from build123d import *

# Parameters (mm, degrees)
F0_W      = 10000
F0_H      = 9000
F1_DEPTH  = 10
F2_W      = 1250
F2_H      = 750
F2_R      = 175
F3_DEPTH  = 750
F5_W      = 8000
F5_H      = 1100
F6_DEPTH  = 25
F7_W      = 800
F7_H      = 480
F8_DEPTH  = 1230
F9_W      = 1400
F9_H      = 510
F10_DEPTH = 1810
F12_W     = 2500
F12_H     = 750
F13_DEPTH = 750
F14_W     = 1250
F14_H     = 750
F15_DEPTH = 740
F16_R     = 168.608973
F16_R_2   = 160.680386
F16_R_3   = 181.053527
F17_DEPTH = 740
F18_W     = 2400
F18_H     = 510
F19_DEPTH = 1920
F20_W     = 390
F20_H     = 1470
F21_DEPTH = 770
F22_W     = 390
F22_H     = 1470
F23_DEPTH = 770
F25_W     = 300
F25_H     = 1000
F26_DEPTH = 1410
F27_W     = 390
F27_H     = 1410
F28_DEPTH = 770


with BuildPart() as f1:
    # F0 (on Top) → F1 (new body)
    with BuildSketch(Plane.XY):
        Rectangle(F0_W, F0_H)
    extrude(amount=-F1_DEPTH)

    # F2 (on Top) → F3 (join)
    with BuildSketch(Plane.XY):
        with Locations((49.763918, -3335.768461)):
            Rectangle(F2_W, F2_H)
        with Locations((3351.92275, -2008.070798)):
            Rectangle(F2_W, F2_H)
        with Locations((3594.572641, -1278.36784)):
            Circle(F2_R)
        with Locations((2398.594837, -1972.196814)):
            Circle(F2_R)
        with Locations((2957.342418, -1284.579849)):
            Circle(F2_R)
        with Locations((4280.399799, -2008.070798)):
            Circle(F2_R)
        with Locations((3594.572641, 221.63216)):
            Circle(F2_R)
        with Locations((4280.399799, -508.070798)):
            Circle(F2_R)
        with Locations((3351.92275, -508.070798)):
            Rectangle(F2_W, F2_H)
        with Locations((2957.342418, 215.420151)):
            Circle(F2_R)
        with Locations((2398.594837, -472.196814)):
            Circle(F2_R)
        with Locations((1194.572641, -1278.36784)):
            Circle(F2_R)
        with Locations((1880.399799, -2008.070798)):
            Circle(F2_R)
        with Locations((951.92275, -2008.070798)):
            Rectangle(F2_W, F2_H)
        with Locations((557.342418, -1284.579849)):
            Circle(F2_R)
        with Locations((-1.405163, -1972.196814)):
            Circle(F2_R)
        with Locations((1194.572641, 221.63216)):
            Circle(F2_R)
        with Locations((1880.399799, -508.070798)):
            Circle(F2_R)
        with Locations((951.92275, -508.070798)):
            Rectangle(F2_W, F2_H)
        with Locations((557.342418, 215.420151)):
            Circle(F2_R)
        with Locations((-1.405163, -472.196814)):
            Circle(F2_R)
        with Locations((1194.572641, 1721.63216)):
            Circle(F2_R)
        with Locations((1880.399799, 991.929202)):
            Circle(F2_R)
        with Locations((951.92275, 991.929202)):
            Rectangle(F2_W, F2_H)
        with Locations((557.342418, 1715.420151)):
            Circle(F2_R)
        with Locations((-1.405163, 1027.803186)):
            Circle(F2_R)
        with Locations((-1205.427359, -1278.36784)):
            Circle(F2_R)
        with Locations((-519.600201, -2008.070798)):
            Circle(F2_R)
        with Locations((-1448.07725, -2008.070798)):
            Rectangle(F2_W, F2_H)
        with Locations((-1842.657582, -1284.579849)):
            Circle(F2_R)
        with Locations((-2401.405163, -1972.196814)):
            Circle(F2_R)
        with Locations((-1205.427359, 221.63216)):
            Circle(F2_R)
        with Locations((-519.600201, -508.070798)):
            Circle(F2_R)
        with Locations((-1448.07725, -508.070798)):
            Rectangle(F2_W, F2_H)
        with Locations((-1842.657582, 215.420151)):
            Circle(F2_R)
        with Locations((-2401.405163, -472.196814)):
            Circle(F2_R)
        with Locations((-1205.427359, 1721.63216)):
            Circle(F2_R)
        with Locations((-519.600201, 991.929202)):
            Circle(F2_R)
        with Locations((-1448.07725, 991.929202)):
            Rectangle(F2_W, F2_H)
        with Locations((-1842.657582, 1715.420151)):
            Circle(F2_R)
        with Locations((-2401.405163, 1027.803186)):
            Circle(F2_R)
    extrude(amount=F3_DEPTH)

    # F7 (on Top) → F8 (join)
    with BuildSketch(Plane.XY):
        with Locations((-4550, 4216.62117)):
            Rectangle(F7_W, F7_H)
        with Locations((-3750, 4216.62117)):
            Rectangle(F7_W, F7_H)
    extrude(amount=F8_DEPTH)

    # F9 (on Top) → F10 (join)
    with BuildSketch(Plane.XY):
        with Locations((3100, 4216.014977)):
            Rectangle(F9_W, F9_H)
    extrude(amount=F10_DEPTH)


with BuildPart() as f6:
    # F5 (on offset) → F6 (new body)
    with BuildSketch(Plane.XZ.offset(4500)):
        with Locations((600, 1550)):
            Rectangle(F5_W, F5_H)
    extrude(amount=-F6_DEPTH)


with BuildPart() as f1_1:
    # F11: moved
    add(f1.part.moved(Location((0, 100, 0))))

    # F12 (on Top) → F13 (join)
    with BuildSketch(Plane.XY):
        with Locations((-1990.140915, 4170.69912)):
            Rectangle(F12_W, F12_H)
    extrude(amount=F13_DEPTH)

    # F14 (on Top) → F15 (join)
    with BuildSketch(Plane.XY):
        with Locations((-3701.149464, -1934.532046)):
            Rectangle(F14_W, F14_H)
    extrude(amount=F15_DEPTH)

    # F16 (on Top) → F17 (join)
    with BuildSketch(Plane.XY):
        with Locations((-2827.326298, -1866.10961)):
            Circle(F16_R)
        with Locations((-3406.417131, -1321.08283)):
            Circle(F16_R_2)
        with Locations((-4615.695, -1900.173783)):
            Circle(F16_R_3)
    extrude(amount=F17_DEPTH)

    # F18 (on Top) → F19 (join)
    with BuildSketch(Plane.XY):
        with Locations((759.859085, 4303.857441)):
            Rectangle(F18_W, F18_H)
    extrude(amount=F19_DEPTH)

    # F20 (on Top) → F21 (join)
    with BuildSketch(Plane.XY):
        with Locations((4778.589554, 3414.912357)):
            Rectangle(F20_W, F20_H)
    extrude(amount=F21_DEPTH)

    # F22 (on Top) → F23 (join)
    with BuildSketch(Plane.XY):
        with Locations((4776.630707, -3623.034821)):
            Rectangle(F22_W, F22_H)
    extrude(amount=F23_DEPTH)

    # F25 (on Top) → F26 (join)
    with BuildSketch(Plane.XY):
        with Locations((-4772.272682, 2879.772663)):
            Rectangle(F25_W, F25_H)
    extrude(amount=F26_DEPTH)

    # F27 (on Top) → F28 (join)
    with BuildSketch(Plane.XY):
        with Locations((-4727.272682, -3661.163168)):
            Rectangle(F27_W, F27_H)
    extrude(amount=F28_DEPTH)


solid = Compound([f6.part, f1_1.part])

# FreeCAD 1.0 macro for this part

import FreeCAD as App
import Part
import Sketcher

V = App.Vector
Q = App.Units.Quantity

doc = App.newDocument("Part")
body = doc.addObject("PartDesign::Body", "Body")

# Sketch on XY plane
sketch1 = body.newObject("Sketcher::SketchObject", "Sketch")
sketch1.AttachmentSupport = (doc.getObject("XY_Plane"), [""])
sketch1.MapMode = "FlatFace"
sketch1.addGeometry([
    Part.LineSegment(V(-5000, 4500, 0), V(-5000, -4500, 0)),
    Part.LineSegment(V(-5000, -4500, 0), V(5000, -4500, 0)),
    Part.LineSegment(V(5000, -4500, 0), V(5000, 4500, 0)),
    Part.LineSegment(V(5000, 4500, 0), V(-5000, 4500, 0)),
], False)
sketch1.addConstraint([
    Sketcher.Constraint("Coincident", 0, 2, 1, 1),
    Sketcher.Constraint("Coincident", 1, 2, 2, 1),
    Sketcher.Constraint("Coincident", 2, 2, 3, 1),
    Sketcher.Constraint("Coincident", 3, 2, 0, 1),
    Sketcher.Constraint("Vertical", 0),
    Sketcher.Constraint("Horizontal", 1),
    Sketcher.Constraint("Vertical", 2),
    Sketcher.Constraint("Horizontal", 3),
    Sketcher.Constraint("Symmetric", 0, 2, 2, 2, -1, 1),
    Sketcher.Constraint("DistanceX", 1, 1, 1, 2, Q("10000 mm")),
    Sketcher.Constraint("DistanceY", 0, 2, 0, 1, Q("9000 mm")),
])
pad1 = body.newObject("PartDesign::Pad", "Pad")
pad1.Profile = sketch1
pad1.Length = 10
pad1.Reversed = True

# Sketch on XY plane
sketch2 = body.newObject("Sketcher::SketchObject", "Sketch001")
sketch2.AttachmentSupport = (doc.getObject("XY_Plane"), [""])
sketch2.MapMode = "FlatFace"
sketch2.addGeometry([
    Part.LineSegment(V(-575.236082, -2960.768461, 0), V(-575.236082, -3710.768461, 0)),  # 0
    Part.LineSegment(V(-575.236082, -3710.768461, 0), V(674.763918, -3710.768461, 0)),  # 1
    Part.LineSegment(V(674.763918, -3710.768461, 0), V(674.763918, -2960.768461, 0)),  # 2
    Part.LineSegment(V(674.763918, -2960.768461, 0), V(-575.236082, -2960.768461, 0)),  # 3
    Part.LineSegment(V(2726.92275, -1633.070798, 0), V(2726.92275, -2383.070798, 0)),  # 4
    Part.LineSegment(V(2726.92275, -2383.070798, 0), V(3976.92275, -2383.070798, 0)),  # 5
    Part.LineSegment(V(3976.92275, -2383.070798, 0), V(3976.92275, -1633.070798, 0)),  # 6
    Part.LineSegment(V(3976.92275, -1633.070798, 0), V(2726.92275, -1633.070798, 0)),  # 7
    Part.Circle(V(3594.572641, -1278.36784, 0), V(0, 0, 1), 175),  # 8
    Part.Circle(V(2398.594837, -1972.196814, 0), V(0, 0, 1), 175),  # 9
    Part.Circle(V(2957.342418, -1284.579849, 0), V(0, 0, 1), 175),  # 10
    Part.Circle(V(4280.399799, -2008.070798, 0), V(0, 0, 1), 175),  # 11
    Part.Circle(V(3594.572641, 221.63216, 0), V(0, 0, 1), 175),  # 12
    Part.Circle(V(4280.399799, -508.070798, 0), V(0, 0, 1), 175),  # 13
    Part.LineSegment(V(2726.92275, -133.070798, 0), V(2726.92275, -883.070798, 0)),  # 14
    Part.LineSegment(V(2726.92275, -883.070798, 0), V(3976.92275, -883.070798, 0)),  # 15
    Part.LineSegment(V(3976.92275, -883.070798, 0), V(3976.92275, -133.070798, 0)),  # 16
    Part.LineSegment(V(3976.92275, -133.070798, 0), V(2726.92275, -133.070798, 0)),  # 17
    Part.Circle(V(2957.342418, 215.420151, 0), V(0, 0, 1), 175),  # 18
    Part.Circle(V(2398.594837, -472.196814, 0), V(0, 0, 1), 175),  # 19
    Part.Circle(V(1194.572641, -1278.36784, 0), V(0, 0, 1), 175),  # 20
    Part.Circle(V(1880.399799, -2008.070798, 0), V(0, 0, 1), 175),  # 21
    Part.LineSegment(V(326.92275, -1633.070798, 0), V(326.92275, -2383.070798, 0)),  # 22
    Part.LineSegment(V(326.92275, -2383.070798, 0), V(1576.92275, -2383.070798, 0)),  # 23
    Part.LineSegment(V(1576.92275, -2383.070798, 0), V(1576.92275, -1633.070798, 0)),  # 24
    Part.LineSegment(V(1576.92275, -1633.070798, 0), V(326.92275, -1633.070798, 0)),  # 25
    Part.Circle(V(557.342418, -1284.579849, 0), V(0, 0, 1), 175),  # 26
    Part.Circle(V(-1.405163, -1972.196814, 0), V(0, 0, 1), 175),  # 27
    Part.Circle(V(1194.572641, 221.63216, 0), V(0, 0, 1), 175),  # 28
    Part.Circle(V(1880.399799, -508.070798, 0), V(0, 0, 1), 175),  # 29
    Part.LineSegment(V(326.92275, -133.070798, 0), V(326.92275, -883.070798, 0)),  # 30
    Part.LineSegment(V(326.92275, -883.070798, 0), V(1576.92275, -883.070798, 0)),  # 31
    Part.LineSegment(V(1576.92275, -883.070798, 0), V(1576.92275, -133.070798, 0)),  # 32
    Part.LineSegment(V(1576.92275, -133.070798, 0), V(326.92275, -133.070798, 0)),  # 33
    Part.Circle(V(557.342418, 215.420151, 0), V(0, 0, 1), 175),  # 34
    Part.Circle(V(-1.405163, -472.196814, 0), V(0, 0, 1), 175),  # 35
    Part.Circle(V(1194.572641, 1721.63216, 0), V(0, 0, 1), 175),  # 36
    Part.Circle(V(1880.399799, 991.929202, 0), V(0, 0, 1), 175),  # 37
    Part.LineSegment(V(326.92275, 1366.929202, 0), V(326.92275, 616.929202, 0)),  # 38
    Part.LineSegment(V(326.92275, 616.929202, 0), V(1576.92275, 616.929202, 0)),  # 39
    Part.LineSegment(V(1576.92275, 616.929202, 0), V(1576.92275, 1366.929202, 0)),  # 40
    Part.LineSegment(V(1576.92275, 1366.929202, 0), V(326.92275, 1366.929202, 0)),  # 41
    Part.Circle(V(557.342418, 1715.420151, 0), V(0, 0, 1), 175),  # 42
    Part.Circle(V(-1.405163, 1027.803186, 0), V(0, 0, 1), 175),  # 43
    Part.Circle(V(-1205.427359, -1278.36784, 0), V(0, 0, 1), 175),  # 44
    Part.Circle(V(-519.600201, -2008.070798, 0), V(0, 0, 1), 175),  # 45
    Part.LineSegment(V(-2073.07725, -1633.070798, 0), V(-2073.07725, -2383.070798, 0)),  # 46
    Part.LineSegment(V(-2073.07725, -2383.070798, 0), V(-823.07725, -2383.070798, 0)),  # 47
    Part.LineSegment(V(-823.07725, -2383.070798, 0), V(-823.07725, -1633.070798, 0)),  # 48
    Part.LineSegment(V(-823.07725, -1633.070798, 0), V(-2073.07725, -1633.070798, 0)),  # 49
    Part.Circle(V(-1842.657582, -1284.579849, 0), V(0, 0, 1), 175),  # 50
    Part.Circle(V(-2401.405163, -1972.196814, 0), V(0, 0, 1), 175),  # 51
    Part.Circle(V(-1205.427359, 221.63216, 0), V(0, 0, 1), 175),  # 52
    Part.Circle(V(-519.600201, -508.070798, 0), V(0, 0, 1), 175),  # 53
    Part.LineSegment(V(-2073.07725, -133.070798, 0), V(-2073.07725, -883.070798, 0)),  # 54
    Part.LineSegment(V(-2073.07725, -883.070798, 0), V(-823.07725, -883.070798, 0)),  # 55
    Part.LineSegment(V(-823.07725, -883.070798, 0), V(-823.07725, -133.070798, 0)),  # 56
    Part.LineSegment(V(-823.07725, -133.070798, 0), V(-2073.07725, -133.070798, 0)),  # 57
    Part.Circle(V(-1842.657582, 215.420151, 0), V(0, 0, 1), 175),  # 58
    Part.Circle(V(-2401.405163, -472.196814, 0), V(0, 0, 1), 175),  # 59
    Part.Circle(V(-1205.427359, 1721.63216, 0), V(0, 0, 1), 175),  # 60
    Part.Circle(V(-519.600201, 991.929202, 0), V(0, 0, 1), 175),  # 61
    Part.LineSegment(V(-2073.07725, 1366.929202, 0), V(-2073.07725, 616.929202, 0)),  # 62
    Part.LineSegment(V(-2073.07725, 616.929202, 0), V(-823.07725, 616.929202, 0)),  # 63
    Part.LineSegment(V(-823.07725, 616.929202, 0), V(-823.07725, 1366.929202, 0)),  # 64
    Part.LineSegment(V(-823.07725, 1366.929202, 0), V(-2073.07725, 1366.929202, 0)),  # 65
    Part.Circle(V(-1842.657582, 1715.420151, 0), V(0, 0, 1), 175),  # 66
    Part.Circle(V(-2401.405163, 1027.803186, 0), V(0, 0, 1), 175),  # 67
], False)
sketch2.addConstraint([
    Sketcher.Constraint("Coincident", 0, 2, 1, 1),
    Sketcher.Constraint("Coincident", 1, 2, 2, 1),
    Sketcher.Constraint("Coincident", 2, 2, 3, 1),
    Sketcher.Constraint("Coincident", 3, 2, 0, 1),
    Sketcher.Constraint("Coincident", 4, 2, 5, 1),
    Sketcher.Constraint("Coincident", 5, 2, 6, 1),
    Sketcher.Constraint("Coincident", 6, 2, 7, 1),
    Sketcher.Constraint("Coincident", 7, 2, 4, 1),
    Sketcher.Constraint("Coincident", 14, 2, 15, 1),
    Sketcher.Constraint("Coincident", 15, 2, 16, 1),
    Sketcher.Constraint("Coincident", 16, 2, 17, 1),
    Sketcher.Constraint("Coincident", 17, 2, 14, 1),
    Sketcher.Constraint("Coincident", 22, 2, 23, 1),
    Sketcher.Constraint("Coincident", 23, 2, 24, 1),
    Sketcher.Constraint("Coincident", 24, 2, 25, 1),
    Sketcher.Constraint("Coincident", 25, 2, 22, 1),
    Sketcher.Constraint("Coincident", 30, 2, 31, 1),
    Sketcher.Constraint("Coincident", 31, 2, 32, 1),
    Sketcher.Constraint("Coincident", 32, 2, 33, 1),
    Sketcher.Constraint("Coincident", 33, 2, 30, 1),
    Sketcher.Constraint("Coincident", 38, 2, 39, 1),
    Sketcher.Constraint("Coincident", 39, 2, 40, 1),
    Sketcher.Constraint("Coincident", 40, 2, 41, 1),
    Sketcher.Constraint("Coincident", 41, 2, 38, 1),
    Sketcher.Constraint("Coincident", 46, 2, 47, 1),
    Sketcher.Constraint("Coincident", 47, 2, 48, 1),
    Sketcher.Constraint("Coincident", 48, 2, 49, 1),
    Sketcher.Constraint("Coincident", 49, 2, 46, 1),
    Sketcher.Constraint("Coincident", 54, 2, 55, 1),
    Sketcher.Constraint("Coincident", 55, 2, 56, 1),
    Sketcher.Constraint("Coincident", 56, 2, 57, 1),
    Sketcher.Constraint("Coincident", 57, 2, 54, 1),
    Sketcher.Constraint("Coincident", 62, 2, 63, 1),
    Sketcher.Constraint("Coincident", 63, 2, 64, 1),
    Sketcher.Constraint("Coincident", 64, 2, 65, 1),
    Sketcher.Constraint("Coincident", 65, 2, 62, 1),
    Sketcher.Constraint("Vertical", 0),
    Sketcher.Constraint("Horizontal", 1),
    Sketcher.Constraint("Vertical", 2),
    Sketcher.Constraint("Horizontal", 3),
    Sketcher.Constraint("Vertical", 4),
    Sketcher.Constraint("Horizontal", 5),
    Sketcher.Constraint("Vertical", 6),
    Sketcher.Constraint("Horizontal", 7),
    Sketcher.Constraint("Vertical", 14),
    Sketcher.Constraint("Horizontal", 15),
    Sketcher.Constraint("Vertical", 16),
    Sketcher.Constraint("Horizontal", 17),
    Sketcher.Constraint("Vertical", 22),
    Sketcher.Constraint("Horizontal", 23),
    Sketcher.Constraint("Vertical", 24),
    Sketcher.Constraint("Horizontal", 25),
    Sketcher.Constraint("Vertical", 30),
    Sketcher.Constraint("Horizontal", 31),
    Sketcher.Constraint("Vertical", 32),
    Sketcher.Constraint("Horizontal", 33),
    Sketcher.Constraint("Vertical", 38),
    Sketcher.Constraint("Horizontal", 39),
    Sketcher.Constraint("Vertical", 40),
    Sketcher.Constraint("Horizontal", 41),
    Sketcher.Constraint("Vertical", 46),
    Sketcher.Constraint("Horizontal", 47),
    Sketcher.Constraint("Vertical", 48),
    Sketcher.Constraint("Horizontal", 49),
    Sketcher.Constraint("Vertical", 54),
    Sketcher.Constraint("Horizontal", 55),
    Sketcher.Constraint("Vertical", 56),
    Sketcher.Constraint("Horizontal", 57),
    Sketcher.Constraint("Vertical", 62),
    Sketcher.Constraint("Horizontal", 63),
    Sketcher.Constraint("Vertical", 64),
    Sketcher.Constraint("Horizontal", 65),
    Sketcher.Constraint("Equal", 8, 9),
    Sketcher.Constraint("Equal", 9, 10),
    Sketcher.Constraint("Equal", 10, 11),
    Sketcher.Constraint("Equal", 11, 12),
    Sketcher.Constraint("Equal", 12, 13),
    Sketcher.Constraint("Equal", 13, 18),
    Sketcher.Constraint("Equal", 18, 19),
    Sketcher.Constraint("Equal", 19, 20),
    Sketcher.Constraint("Equal", 20, 21),
    Sketcher.Constraint("Equal", 21, 26),
    Sketcher.Constraint("Equal", 26, 27),
    Sketcher.Constraint("Equal", 27, 28),
    Sketcher.Constraint("Equal", 28, 29),
    Sketcher.Constraint("Equal", 29, 34),
    Sketcher.Constraint("Equal", 34, 35),
    Sketcher.Constraint("Equal", 35, 36),
    Sketcher.Constraint("Equal", 36, 37),
    Sketcher.Constraint("Equal", 37, 42),
    Sketcher.Constraint("Equal", 42, 43),
    Sketcher.Constraint("Equal", 43, 44),
    Sketcher.Constraint("Equal", 44, 45),
    Sketcher.Constraint("Equal", 45, 50),
    Sketcher.Constraint("Equal", 50, 51),
    Sketcher.Constraint("Equal", 51, 52),
    Sketcher.Constraint("Equal", 52, 53),
    Sketcher.Constraint("Equal", 53, 58),
    Sketcher.Constraint("Equal", 58, 59),
    Sketcher.Constraint("Equal", 59, 60),
    Sketcher.Constraint("Equal", 60, 61),
    Sketcher.Constraint("Equal", 61, 66),
    Sketcher.Constraint("Equal", 66, 67),
    Sketcher.Constraint("Horizontal", 8, 3, 20, 3),
    Sketcher.Constraint("Horizontal", 11, 3, 21, 3),
    Sketcher.Constraint("Horizontal", 10, 3, 26, 3),
    Sketcher.Constraint("Horizontal", 9, 3, 27, 3),
    Sketcher.Constraint("Horizontal", 12, 3, 28, 3),
    Sketcher.Constraint("Horizontal", 13, 3, 29, 3),
    Sketcher.Constraint("Horizontal", 18, 3, 34, 3),
    Sketcher.Constraint("Horizontal", 19, 3, 35, 3),
    Sketcher.Constraint("Horizontal", 20, 3, 44, 3),
    Sketcher.Constraint("Horizontal", 21, 3, 45, 3),
    Sketcher.Constraint("Horizontal", 26, 3, 50, 3),
    Sketcher.Constraint("Horizontal", 27, 3, 51, 3),
    Sketcher.Constraint("Horizontal", 28, 3, 52, 3),
    Sketcher.Constraint("Horizontal", 29, 3, 53, 3),
    Sketcher.Constraint("Horizontal", 34, 3, 58, 3),
    Sketcher.Constraint("Horizontal", 35, 3, 59, 3),
    Sketcher.Constraint("Horizontal", 36, 3, 60, 3),
    Sketcher.Constraint("Horizontal", 37, 3, 61, 3),
    Sketcher.Constraint("Horizontal", 42, 3, 66, 3),
    Sketcher.Constraint("Horizontal", 43, 3, 67, 3),
    Sketcher.Constraint("Horizontal", 5, 2, 22, 2),
    Sketcher.Constraint("Horizontal", 7, 2, 24, 2),
    Sketcher.Constraint("Horizontal", 15, 2, 30, 2),
    Sketcher.Constraint("Horizontal", 17, 2, 32, 2),
    Sketcher.Constraint("Horizontal", 23, 2, 46, 2),
    Sketcher.Constraint("Horizontal", 25, 2, 48, 2),
    Sketcher.Constraint("Horizontal", 31, 2, 54, 2),
    Sketcher.Constraint("Horizontal", 33, 2, 56, 2),
    Sketcher.Constraint("Horizontal", 39, 2, 62, 2),
    Sketcher.Constraint("Horizontal", 41, 2, 64, 2),
    Sketcher.Constraint("Vertical", 8, 3, 12, 3),
    Sketcher.Constraint("Vertical", 11, 3, 13, 3),
    Sketcher.Constraint("Vertical", 10, 3, 18, 3),
    Sketcher.Constraint("Vertical", 9, 3, 19, 3),
    Sketcher.Constraint("Vertical", 20, 3, 28, 3),
    Sketcher.Constraint("Vertical", 21, 3, 29, 3),
    Sketcher.Constraint("Vertical", 26, 3, 34, 3),
    Sketcher.Constraint("Vertical", 27, 3, 35, 3),
    Sketcher.Constraint("Vertical", 28, 3, 36, 3),
    Sketcher.Constraint("Vertical", 29, 3, 37, 3),
    Sketcher.Constraint("Vertical", 34, 3, 42, 3),
    Sketcher.Constraint("Vertical", 35, 3, 43, 3),
    Sketcher.Constraint("Vertical", 44, 3, 52, 3),
    Sketcher.Constraint("Vertical", 45, 3, 53, 3),
    Sketcher.Constraint("Vertical", 50, 3, 58, 3),
    Sketcher.Constraint("Vertical", 51, 3, 59, 3),
    Sketcher.Constraint("Vertical", 52, 3, 60, 3),
    Sketcher.Constraint("Vertical", 53, 3, 61, 3),
    Sketcher.Constraint("Vertical", 58, 3, 66, 3),
    Sketcher.Constraint("Vertical", 59, 3, 67, 3),
    Sketcher.Constraint("Vertical", 7, 2, 14, 2),
    Sketcher.Constraint("Vertical", 6, 2, 15, 2),
    Sketcher.Constraint("Vertical", 25, 2, 30, 2),
    Sketcher.Constraint("Vertical", 24, 2, 31, 2),
    Sketcher.Constraint("Vertical", 33, 2, 38, 2),
    Sketcher.Constraint("Vertical", 32, 2, 39, 2),
    Sketcher.Constraint("Vertical", 49, 2, 54, 2),
    Sketcher.Constraint("Vertical", 48, 2, 55, 2),
    Sketcher.Constraint("Vertical", 57, 2, 62, 2),
    Sketcher.Constraint("Vertical", 56, 2, 63, 2),
    Sketcher.Constraint("Equal", 3, 5),
    Sketcher.Constraint("Equal", 17, 23),
    Sketcher.Constraint("Equal", 41, 47),
    Sketcher.Constraint("Equal", 2, 4),
    Sketcher.Constraint("Equal", 6, 14),
    Sketcher.Constraint("Equal", 32, 38),
    Sketcher.Constraint("Diameter", 8, Q("350 mm")),
    Sketcher.Constraint("DistanceX", 1, 1, 1, 2, Q("1250 mm")),
    Sketcher.Constraint("DistanceY", 0, 2, 0, 1, Q("750 mm")),
    Sketcher.Constraint("DistanceX", -1, 1, 11, 3, Q("4280.399799 mm")),
    Sketcher.Constraint("DistanceY", 11, 3, -1, 1, Q("2008.070798 mm")),
    Sketcher.Constraint("DistanceY", 13, 3, -1, 1, Q("508.070798 mm")),
    Sketcher.Constraint("DistanceX", -1, 1, 21, 3, Q("1880.399799 mm")),
    Sketcher.Constraint("DistanceY", -1, 1, 37, 3, Q("991.929202 mm")),
    Sketcher.Constraint("DistanceX", 45, 3, -1, 1, Q("519.600201 mm")),
    Sketcher.Constraint("DistanceY", 4, 2, -1, 1, Q("2383.070798 mm")),
    Sketcher.Constraint("DistanceY", 14, 2, -1, 1, Q("883.070798 mm")),
    Sketcher.Constraint("DistanceY", -1, 1, 38, 2, Q("616.929202 mm")),
    Sketcher.Constraint("DistanceX", -1, 1, 8, 3, Q("3594.572641 mm")),
    Sketcher.Constraint("DistanceY", 8, 3, -1, 1, Q("1278.36784 mm")),
    Sketcher.Constraint("DistanceX", -1, 1, 10, 3, Q("2957.342418 mm")),
    Sketcher.Constraint("DistanceY", 10, 3, -1, 1, Q("1284.579849 mm")),
    Sketcher.Constraint("DistanceY", -1, 1, 12, 3, Q("221.63216 mm")),
    Sketcher.Constraint("DistanceY", -1, 1, 18, 3, Q("215.420151 mm")),
    Sketcher.Constraint("DistanceX", -1, 1, 20, 3, Q("1194.572641 mm")),
    Sketcher.Constraint("DistanceX", -1, 1, 26, 3, Q("557.342418 mm")),
    Sketcher.Constraint("DistanceY", -1, 1, 36, 3, Q("1721.63216 mm")),
    Sketcher.Constraint("DistanceY", -1, 1, 42, 3, Q("1715.420151 mm")),
    Sketcher.Constraint("DistanceX", 44, 3, -1, 1, Q("1205.427359 mm")),
    Sketcher.Constraint("DistanceX", 50, 3, -1, 1, Q("1842.657582 mm")),
    Sketcher.Constraint("DistanceX", 0, 2, -1, 1, Q("575.236082 mm")),
    Sketcher.Constraint("DistanceY", 0, 2, -1, 1, Q("3710.768461 mm")),
    Sketcher.Constraint("DistanceX", -1, 1, 4, 2, Q("2726.92275 mm")),
    Sketcher.Constraint("DistanceX", -1, 1, 22, 2, Q("326.92275 mm")),
    Sketcher.Constraint("DistanceX", 46, 2, -1, 1, Q("2073.07725 mm")),
    Sketcher.Constraint("DistanceX", -1, 1, 9, 3, Q("2398.594837 mm")),
    Sketcher.Constraint("DistanceY", 9, 3, -1, 1, Q("1972.196814 mm")),
    Sketcher.Constraint("DistanceY", 19, 3, -1, 1, Q("472.196814 mm")),
    Sketcher.Constraint("DistanceX", 27, 3, -1, 1, Q("1.405163 mm")),
    Sketcher.Constraint("DistanceY", -1, 1, 43, 3, Q("1027.803186 mm")),
    Sketcher.Constraint("DistanceX", 51, 3, -1, 1, Q("2401.405163 mm")),
])
pad2 = body.newObject("PartDesign::Pad", "Pad001")
pad2.Profile = sketch2
pad2.Length = 750

# Sketch on XY plane
sketch3 = body.newObject("Sketcher::SketchObject", "Sketch002")
sketch3.AttachmentSupport = (doc.getObject("XY_Plane"), [""])
sketch3.MapMode = "FlatFace"
sketch3.addGeometry([
    Part.LineSegment(V(-4950, 4456.62117, 0), V(-4950, 3976.62117, 0)),
    Part.LineSegment(V(-4950, 3976.62117, 0), V(-3350, 3976.62117, 0)),
    Part.LineSegment(V(-3350, 3976.62117, 0), V(-3350, 4456.62117, 0)),
    Part.LineSegment(V(-3350, 4456.62117, 0), V(-4950, 4456.62117, 0)),
], False)
sketch3.addConstraint([
    Sketcher.Constraint("Coincident", 0, 2, 1, 1),
    Sketcher.Constraint("Coincident", 1, 2, 2, 1),
    Sketcher.Constraint("Coincident", 2, 2, 3, 1),
    Sketcher.Constraint("Coincident", 3, 2, 0, 1),
    Sketcher.Constraint("Vertical", 0),
    Sketcher.Constraint("Horizontal", 1),
    Sketcher.Constraint("Vertical", 2),
    Sketcher.Constraint("Horizontal", 3),
    Sketcher.Constraint("DistanceX", 1, 1, 1, 2, Q("1600 mm")),
    Sketcher.Constraint("DistanceY", 0, 2, 0, 1, Q("480 mm")),
    Sketcher.Constraint("DistanceX", 0, 2, -1, 1, Q("4950 mm")),
    Sketcher.Constraint("DistanceY", -1, 1, 0, 2, Q("3976.62117 mm")),
])
pad3 = body.newObject("PartDesign::Pad", "Pad002")
pad3.Profile = sketch3
pad3.Length = 1230

# Sketch on XY plane
sketch4 = body.newObject("Sketcher::SketchObject", "Sketch003")
sketch4.AttachmentSupport = (doc.getObject("XY_Plane"), [""])
sketch4.MapMode = "FlatFace"
sketch4.addGeometry([
    Part.LineSegment(V(2400, 4471.014977, 0), V(2400, 3961.014977, 0)),
    Part.LineSegment(V(2400, 3961.014977, 0), V(3800, 3961.014977, 0)),
    Part.LineSegment(V(3800, 3961.014977, 0), V(3800, 4471.014977, 0)),
    Part.LineSegment(V(3800, 4471.014977, 0), V(2400, 4471.014977, 0)),
], False)
sketch4.addConstraint([
    Sketcher.Constraint("Coincident", 0, 2, 1, 1),
    Sketcher.Constraint("Coincident", 1, 2, 2, 1),
    Sketcher.Constraint("Coincident", 2, 2, 3, 1),
    Sketcher.Constraint("Coincident", 3, 2, 0, 1),
    Sketcher.Constraint("Vertical", 0),
    Sketcher.Constraint("Horizontal", 1),
    Sketcher.Constraint("Vertical", 2),
    Sketcher.Constraint("Horizontal", 3),
    Sketcher.Constraint("DistanceX", 1, 1, 1, 2, Q("1400 mm")),
    Sketcher.Constraint("DistanceY", 0, 2, 0, 1, Q("510 mm")),
    Sketcher.Constraint("DistanceX", -1, 1, 0, 2, Q("2400 mm")),
    Sketcher.Constraint("DistanceY", -1, 1, 0, 2, Q("3961.014977 mm")),
])
pad4 = body.newObject("PartDesign::Pad", "Pad003")
pad4.Profile = sketch4
pad4.Length = 1810
body2 = doc.addObject("PartDesign::Body", "Body001")

# Sketch on XZ plane
sketch5 = body2.newObject("Sketcher::SketchObject", "Sketch004")
sketch5.AttachmentSupport = (doc.getObject("XZ_Plane001"), [""])
sketch5.MapMode = "FlatFace"
sketch5.AttachmentOffset = App.Placement(V(0, 0, 4500), App.Rotation())
sketch5.addGeometry([
    Part.LineSegment(V(-3400, 2100, 0), V(-3400, 1000, 0)),
    Part.LineSegment(V(-3400, 1000, 0), V(4600, 1000, 0)),
    Part.LineSegment(V(4600, 1000, 0), V(4600, 2100, 0)),
    Part.LineSegment(V(4600, 2100, 0), V(-3400, 2100, 0)),
], False)
sketch5.addConstraint([
    Sketcher.Constraint("Coincident", 0, 2, 1, 1),
    Sketcher.Constraint("Coincident", 1, 2, 2, 1),
    Sketcher.Constraint("Coincident", 2, 2, 3, 1),
    Sketcher.Constraint("Coincident", 3, 2, 0, 1),
    Sketcher.Constraint("Vertical", 0),
    Sketcher.Constraint("Horizontal", 1),
    Sketcher.Constraint("Vertical", 2),
    Sketcher.Constraint("Horizontal", 3),
    Sketcher.Constraint("DistanceX", 1, 1, 1, 2, Q("8000 mm")),
    Sketcher.Constraint("DistanceY", 0, 2, 0, 1, Q("1100 mm")),
    Sketcher.Constraint("DistanceX", 0, 2, -1, 1, Q("3400 mm")),
    Sketcher.Constraint("DistanceY", -1, 1, 0, 2, Q("1000 mm")),
])
pad5 = body2.newObject("PartDesign::Pad", "Pad004")
pad5.Profile = sketch5
pad5.Length = 25
pad5.Reversed = True
body3 = doc.addObject("PartDesign::Body", "Body002")
doc.recompute()

body.Placement = App.Placement(V(0, 100, 0), App.Rotation(V(0, 0, 1), 0))
boolean = body3.newObject("PartDesign::Boolean", "Boolean")
boolean.Type = "Fuse"
boolean.addObjects([body])

# Sketch on XY plane
sketch6 = body3.newObject("Sketcher::SketchObject", "Sketch005")
sketch6.AttachmentSupport = (doc.getObject("XY_Plane002"), [""])
sketch6.MapMode = "FlatFace"
sketch6.addGeometry([
    Part.LineSegment(V(-3240.140915, 4545.69912, 0), V(-3240.140915, 3795.69912, 0)),
    Part.LineSegment(V(-3240.140915, 3795.69912, 0), V(-740.140915, 3795.69912, 0)),
    Part.LineSegment(V(-740.140915, 3795.69912, 0), V(-740.140915, 4545.69912, 0)),
    Part.LineSegment(V(-740.140915, 4545.69912, 0), V(-3240.140915, 4545.69912, 0)),
], False)
sketch6.addConstraint([
    Sketcher.Constraint("Coincident", 0, 2, 1, 1),
    Sketcher.Constraint("Coincident", 1, 2, 2, 1),
    Sketcher.Constraint("Coincident", 2, 2, 3, 1),
    Sketcher.Constraint("Coincident", 3, 2, 0, 1),
    Sketcher.Constraint("Vertical", 0),
    Sketcher.Constraint("Horizontal", 1),
    Sketcher.Constraint("Vertical", 2),
    Sketcher.Constraint("Horizontal", 3),
    Sketcher.Constraint("DistanceX", 1, 1, 1, 2, Q("2500 mm")),
    Sketcher.Constraint("DistanceY", 0, 2, 0, 1, Q("750 mm")),
    Sketcher.Constraint("DistanceY", -1, 1, 0, 2, Q("3795.69912 mm")),
    Sketcher.Constraint("DistanceX", 0, 2, -1, 1, Q("3240.140915 mm")),
])
pad6 = body3.newObject("PartDesign::Pad", "Pad005")
pad6.Profile = sketch6
pad6.Length = 750

# Sketch on XY plane
sketch7 = body3.newObject("Sketcher::SketchObject", "Sketch006")
sketch7.AttachmentSupport = (doc.getObject("XY_Plane002"), [""])
sketch7.MapMode = "FlatFace"
sketch7.addGeometry([
    Part.LineSegment(V(-4326.149464, -1559.532046, 0), V(-4326.149464, -2309.532046, 0)),
    Part.LineSegment(V(-4326.149464, -2309.532046, 0), V(-3076.149464, -2309.532046, 0)),
    Part.LineSegment(V(-3076.149464, -2309.532046, 0), V(-3076.149464, -1559.532046, 0)),
    Part.LineSegment(V(-3076.149464, -1559.532046, 0), V(-4326.149464, -1559.532046, 0)),
], False)
sketch7.addConstraint([
    Sketcher.Constraint("Coincident", 0, 2, 1, 1),
    Sketcher.Constraint("Coincident", 1, 2, 2, 1),
    Sketcher.Constraint("Coincident", 2, 2, 3, 1),
    Sketcher.Constraint("Coincident", 3, 2, 0, 1),
    Sketcher.Constraint("Vertical", 0),
    Sketcher.Constraint("Horizontal", 1),
    Sketcher.Constraint("Vertical", 2),
    Sketcher.Constraint("Horizontal", 3),
    Sketcher.Constraint("DistanceX", 1, 1, 1, 2, Q("1250 mm")),
    Sketcher.Constraint("DistanceY", 0, 2, 0, 1, Q("750 mm")),
    Sketcher.Constraint("DistanceX", 0, 2, -1, 1, Q("4326.149464 mm")),
    Sketcher.Constraint("DistanceY", 0, 2, -1, 1, Q("2309.532046 mm")),
])
pad7 = body3.newObject("PartDesign::Pad", "Pad006")
pad7.Profile = sketch7
pad7.Length = 740

# Sketch on XY plane
sketch8 = body3.newObject("Sketcher::SketchObject", "Sketch007")
sketch8.AttachmentSupport = (doc.getObject("XY_Plane002"), [""])
sketch8.MapMode = "FlatFace"
sketch8.addGeometry([
    Part.Circle(V(-2827.326298, -1866.10961, 0), V(0, 0, 1), 168.608973),
    Part.Circle(V(-3406.417131, -1321.08283, 0), V(0, 0, 1), 160.680386),
    Part.Circle(V(-4615.695, -1900.173783, 0), V(0, 0, 1), 181.053527),
], False)
sketch8.addConstraint([
    Sketcher.Constraint("Diameter", 1, Q("321.360772 mm")),
    Sketcher.Constraint("Diameter", 0, Q("337.217946 mm")),
    Sketcher.Constraint("Diameter", 2, Q("362.107054 mm")),
    Sketcher.Constraint("DistanceX", 2, 3, -1, 1, Q("4615.695 mm")),
    Sketcher.Constraint("DistanceX", 2, 3, 0, 3, Q("1788.368702 mm")),
    Sketcher.Constraint("DistanceY", 0, 3, -1, 1, Q("1866.10961 mm")),
    Sketcher.Constraint("DistanceX", 1, 3, -1, 1, Q("3406.417131 mm")),
    Sketcher.Constraint("DistanceY", 1, 3, -1, 1, Q("1321.08283 mm")),
    Sketcher.Constraint("DistanceY", 2, 3, -1, 1, Q("1900.173783 mm")),
])
pad8 = body3.newObject("PartDesign::Pad", "Pad007")
pad8.Profile = sketch8
pad8.Length = 740

# Sketch on XY plane
sketch9 = body3.newObject("Sketcher::SketchObject", "Sketch008")
sketch9.AttachmentSupport = (doc.getObject("XY_Plane002"), [""])
sketch9.MapMode = "FlatFace"
sketch9.addGeometry([
    Part.LineSegment(V(-440.140915, 4558.857441, 0), V(-440.140915, 4048.857441, 0)),
    Part.LineSegment(V(-440.140915, 4048.857441, 0), V(1959.859085, 4048.857441, 0)),
    Part.LineSegment(V(1959.859085, 4048.857441, 0), V(1959.859085, 4558.857441, 0)),
    Part.LineSegment(V(1959.859085, 4558.857441, 0), V(-440.140915, 4558.857441, 0)),
], False)
sketch9.addConstraint([
    Sketcher.Constraint("Coincident", 0, 2, 1, 1),
    Sketcher.Constraint("Coincident", 1, 2, 2, 1),
    Sketcher.Constraint("Coincident", 2, 2, 3, 1),
    Sketcher.Constraint("Coincident", 3, 2, 0, 1),
    Sketcher.Constraint("Vertical", 0),
    Sketcher.Constraint("Horizontal", 1),
    Sketcher.Constraint("Vertical", 2),
    Sketcher.Constraint("Horizontal", 3),
    Sketcher.Constraint("DistanceX", 1, 1, 1, 2, Q("2400 mm")),
    Sketcher.Constraint("DistanceY", 0, 2, 0, 1, Q("510 mm")),
    Sketcher.Constraint("DistanceY", -1, 1, 0, 2, Q("4048.857441 mm")),
    Sketcher.Constraint("DistanceX", 0, 2, -1, 1, Q("440.140915 mm")),
])
pad9 = body3.newObject("PartDesign::Pad", "Pad008")
pad9.Profile = sketch9
pad9.Length = 1920

# Sketch on XY plane
sketch10 = body3.newObject("Sketcher::SketchObject", "Sketch009")
sketch10.AttachmentSupport = (doc.getObject("XY_Plane002"), [""])
sketch10.MapMode = "FlatFace"
sketch10.addGeometry([
    Part.LineSegment(V(4583.589554, 4149.912357, 0), V(4583.589554, 2679.912357, 0)),
    Part.LineSegment(V(4583.589554, 2679.912357, 0), V(4973.589554, 2679.912357, 0)),
    Part.LineSegment(V(4973.589554, 2679.912357, 0), V(4973.589554, 4149.912357, 0)),
    Part.LineSegment(V(4973.589554, 4149.912357, 0), V(4583.589554, 4149.912357, 0)),
], False)
sketch10.addConstraint([
    Sketcher.Constraint("Coincident", 0, 2, 1, 1),
    Sketcher.Constraint("Coincident", 1, 2, 2, 1),
    Sketcher.Constraint("Coincident", 2, 2, 3, 1),
    Sketcher.Constraint("Coincident", 3, 2, 0, 1),
    Sketcher.Constraint("Vertical", 0),
    Sketcher.Constraint("Horizontal", 1),
    Sketcher.Constraint("Vertical", 2),
    Sketcher.Constraint("Horizontal", 3),
    Sketcher.Constraint("DistanceX", 1, 1, 1, 2, Q("390 mm")),
    Sketcher.Constraint("DistanceY", 0, 2, 0, 1, Q("1470 mm")),
    Sketcher.Constraint("DistanceX", -1, 1, 0, 2, Q("4583.589554 mm")),
    Sketcher.Constraint("DistanceY", -1, 1, 0, 2, Q("2679.912357 mm")),
])
pad10 = body3.newObject("PartDesign::Pad", "Pad009")
pad10.Profile = sketch10
pad10.Length = 770

# Sketch on XY plane
sketch11 = body3.newObject("Sketcher::SketchObject", "Sketch010")
sketch11.AttachmentSupport = (doc.getObject("XY_Plane002"), [""])
sketch11.MapMode = "FlatFace"
sketch11.addGeometry([
    Part.LineSegment(V(4581.630707, -2888.034821, 0), V(4581.630707, -4358.034821, 0)),
    Part.LineSegment(V(4581.630707, -4358.034821, 0), V(4971.630707, -4358.034821, 0)),
    Part.LineSegment(V(4971.630707, -4358.034821, 0), V(4971.630707, -2888.034821, 0)),
    Part.LineSegment(V(4971.630707, -2888.034821, 0), V(4581.630707, -2888.034821, 0)),
], False)
sketch11.addConstraint([
    Sketcher.Constraint("Coincident", 0, 2, 1, 1),
    Sketcher.Constraint("Coincident", 1, 2, 2, 1),
    Sketcher.Constraint("Coincident", 2, 2, 3, 1),
    Sketcher.Constraint("Coincident", 3, 2, 0, 1),
    Sketcher.Constraint("Vertical", 0),
    Sketcher.Constraint("Horizontal", 1),
    Sketcher.Constraint("Vertical", 2),
    Sketcher.Constraint("Horizontal", 3),
    Sketcher.Constraint("DistanceX", 1, 1, 1, 2, Q("390 mm")),
    Sketcher.Constraint("DistanceY", 0, 2, 0, 1, Q("1470 mm")),
    Sketcher.Constraint("DistanceY", 0, 2, -1, 1, Q("4358.034821 mm")),
    Sketcher.Constraint("DistanceX", -1, 1, 0, 2, Q("4581.630707 mm")),
])
pad11 = body3.newObject("PartDesign::Pad", "Pad010")
pad11.Profile = sketch11
pad11.Length = 770

# Sketch on XY plane
sketch12 = body3.newObject("Sketcher::SketchObject", "Sketch011")
sketch12.AttachmentSupport = (doc.getObject("XY_Plane002"), [""])
sketch12.MapMode = "FlatFace"
sketch12.addGeometry([
    Part.LineSegment(V(-4922.272682, 3379.772663, 0), V(-4922.272682, 2379.772663, 0)),
    Part.LineSegment(V(-4922.272682, 2379.772663, 0), V(-4622.272682, 2379.772663, 0)),
    Part.LineSegment(V(-4622.272682, 2379.772663, 0), V(-4622.272682, 3379.772663, 0)),
    Part.LineSegment(V(-4622.272682, 3379.772663, 0), V(-4922.272682, 3379.772663, 0)),
], False)
sketch12.addConstraint([
    Sketcher.Constraint("Coincident", 0, 2, 1, 1),
    Sketcher.Constraint("Coincident", 1, 2, 2, 1),
    Sketcher.Constraint("Coincident", 2, 2, 3, 1),
    Sketcher.Constraint("Coincident", 3, 2, 0, 1),
    Sketcher.Constraint("Vertical", 0),
    Sketcher.Constraint("Horizontal", 1),
    Sketcher.Constraint("Vertical", 2),
    Sketcher.Constraint("Horizontal", 3),
    Sketcher.Constraint("DistanceX", 1, 1, 1, 2, Q("300 mm")),
    Sketcher.Constraint("DistanceY", 0, 2, 0, 1, Q("1000 mm")),
    Sketcher.Constraint("DistanceX", 0, 2, -1, 1, Q("4922.272682 mm")),
    Sketcher.Constraint("DistanceY", -1, 1, 0, 2, Q("2379.772663 mm")),
])
pad12 = body3.newObject("PartDesign::Pad", "Pad011")
pad12.Profile = sketch12
pad12.Length = 1410

# Sketch on XY plane
sketch13 = body3.newObject("Sketcher::SketchObject", "Sketch012")
sketch13.AttachmentSupport = (doc.getObject("XY_Plane002"), [""])
sketch13.MapMode = "FlatFace"
sketch13.addGeometry([
    Part.LineSegment(V(-4922.272682, -2956.163168, 0), V(-4922.272682, -4366.163168, 0)),
    Part.LineSegment(V(-4922.272682, -4366.163168, 0), V(-4532.272682, -4366.163168, 0)),
    Part.LineSegment(V(-4532.272682, -4366.163168, 0), V(-4532.272682, -2956.163168, 0)),
    Part.LineSegment(V(-4532.272682, -2956.163168, 0), V(-4922.272682, -2956.163168, 0)),
], False)
sketch13.addConstraint([
    Sketcher.Constraint("Coincident", 0, 2, 1, 1),
    Sketcher.Constraint("Coincident", 1, 2, 2, 1),
    Sketcher.Constraint("Coincident", 2, 2, 3, 1),
    Sketcher.Constraint("Coincident", 3, 2, 0, 1),
    Sketcher.Constraint("Vertical", 0),
    Sketcher.Constraint("Horizontal", 1),
    Sketcher.Constraint("Vertical", 2),
    Sketcher.Constraint("Horizontal", 3),
    Sketcher.Constraint("DistanceX", 1, 1, 1, 2, Q("390 mm")),
    Sketcher.Constraint("DistanceY", 0, 2, 0, 1, Q("1410 mm")),
    Sketcher.Constraint("DistanceX", 0, 2, -1, 1, Q("4922.272682 mm")),
    Sketcher.Constraint("DistanceY", 0, 2, -1, 1, Q("4366.163168 mm")),
])
pad13 = body3.newObject("PartDesign::Pad", "Pad012")
pad13.Profile = sketch13
pad13.Length = 770

doc.recompute()
